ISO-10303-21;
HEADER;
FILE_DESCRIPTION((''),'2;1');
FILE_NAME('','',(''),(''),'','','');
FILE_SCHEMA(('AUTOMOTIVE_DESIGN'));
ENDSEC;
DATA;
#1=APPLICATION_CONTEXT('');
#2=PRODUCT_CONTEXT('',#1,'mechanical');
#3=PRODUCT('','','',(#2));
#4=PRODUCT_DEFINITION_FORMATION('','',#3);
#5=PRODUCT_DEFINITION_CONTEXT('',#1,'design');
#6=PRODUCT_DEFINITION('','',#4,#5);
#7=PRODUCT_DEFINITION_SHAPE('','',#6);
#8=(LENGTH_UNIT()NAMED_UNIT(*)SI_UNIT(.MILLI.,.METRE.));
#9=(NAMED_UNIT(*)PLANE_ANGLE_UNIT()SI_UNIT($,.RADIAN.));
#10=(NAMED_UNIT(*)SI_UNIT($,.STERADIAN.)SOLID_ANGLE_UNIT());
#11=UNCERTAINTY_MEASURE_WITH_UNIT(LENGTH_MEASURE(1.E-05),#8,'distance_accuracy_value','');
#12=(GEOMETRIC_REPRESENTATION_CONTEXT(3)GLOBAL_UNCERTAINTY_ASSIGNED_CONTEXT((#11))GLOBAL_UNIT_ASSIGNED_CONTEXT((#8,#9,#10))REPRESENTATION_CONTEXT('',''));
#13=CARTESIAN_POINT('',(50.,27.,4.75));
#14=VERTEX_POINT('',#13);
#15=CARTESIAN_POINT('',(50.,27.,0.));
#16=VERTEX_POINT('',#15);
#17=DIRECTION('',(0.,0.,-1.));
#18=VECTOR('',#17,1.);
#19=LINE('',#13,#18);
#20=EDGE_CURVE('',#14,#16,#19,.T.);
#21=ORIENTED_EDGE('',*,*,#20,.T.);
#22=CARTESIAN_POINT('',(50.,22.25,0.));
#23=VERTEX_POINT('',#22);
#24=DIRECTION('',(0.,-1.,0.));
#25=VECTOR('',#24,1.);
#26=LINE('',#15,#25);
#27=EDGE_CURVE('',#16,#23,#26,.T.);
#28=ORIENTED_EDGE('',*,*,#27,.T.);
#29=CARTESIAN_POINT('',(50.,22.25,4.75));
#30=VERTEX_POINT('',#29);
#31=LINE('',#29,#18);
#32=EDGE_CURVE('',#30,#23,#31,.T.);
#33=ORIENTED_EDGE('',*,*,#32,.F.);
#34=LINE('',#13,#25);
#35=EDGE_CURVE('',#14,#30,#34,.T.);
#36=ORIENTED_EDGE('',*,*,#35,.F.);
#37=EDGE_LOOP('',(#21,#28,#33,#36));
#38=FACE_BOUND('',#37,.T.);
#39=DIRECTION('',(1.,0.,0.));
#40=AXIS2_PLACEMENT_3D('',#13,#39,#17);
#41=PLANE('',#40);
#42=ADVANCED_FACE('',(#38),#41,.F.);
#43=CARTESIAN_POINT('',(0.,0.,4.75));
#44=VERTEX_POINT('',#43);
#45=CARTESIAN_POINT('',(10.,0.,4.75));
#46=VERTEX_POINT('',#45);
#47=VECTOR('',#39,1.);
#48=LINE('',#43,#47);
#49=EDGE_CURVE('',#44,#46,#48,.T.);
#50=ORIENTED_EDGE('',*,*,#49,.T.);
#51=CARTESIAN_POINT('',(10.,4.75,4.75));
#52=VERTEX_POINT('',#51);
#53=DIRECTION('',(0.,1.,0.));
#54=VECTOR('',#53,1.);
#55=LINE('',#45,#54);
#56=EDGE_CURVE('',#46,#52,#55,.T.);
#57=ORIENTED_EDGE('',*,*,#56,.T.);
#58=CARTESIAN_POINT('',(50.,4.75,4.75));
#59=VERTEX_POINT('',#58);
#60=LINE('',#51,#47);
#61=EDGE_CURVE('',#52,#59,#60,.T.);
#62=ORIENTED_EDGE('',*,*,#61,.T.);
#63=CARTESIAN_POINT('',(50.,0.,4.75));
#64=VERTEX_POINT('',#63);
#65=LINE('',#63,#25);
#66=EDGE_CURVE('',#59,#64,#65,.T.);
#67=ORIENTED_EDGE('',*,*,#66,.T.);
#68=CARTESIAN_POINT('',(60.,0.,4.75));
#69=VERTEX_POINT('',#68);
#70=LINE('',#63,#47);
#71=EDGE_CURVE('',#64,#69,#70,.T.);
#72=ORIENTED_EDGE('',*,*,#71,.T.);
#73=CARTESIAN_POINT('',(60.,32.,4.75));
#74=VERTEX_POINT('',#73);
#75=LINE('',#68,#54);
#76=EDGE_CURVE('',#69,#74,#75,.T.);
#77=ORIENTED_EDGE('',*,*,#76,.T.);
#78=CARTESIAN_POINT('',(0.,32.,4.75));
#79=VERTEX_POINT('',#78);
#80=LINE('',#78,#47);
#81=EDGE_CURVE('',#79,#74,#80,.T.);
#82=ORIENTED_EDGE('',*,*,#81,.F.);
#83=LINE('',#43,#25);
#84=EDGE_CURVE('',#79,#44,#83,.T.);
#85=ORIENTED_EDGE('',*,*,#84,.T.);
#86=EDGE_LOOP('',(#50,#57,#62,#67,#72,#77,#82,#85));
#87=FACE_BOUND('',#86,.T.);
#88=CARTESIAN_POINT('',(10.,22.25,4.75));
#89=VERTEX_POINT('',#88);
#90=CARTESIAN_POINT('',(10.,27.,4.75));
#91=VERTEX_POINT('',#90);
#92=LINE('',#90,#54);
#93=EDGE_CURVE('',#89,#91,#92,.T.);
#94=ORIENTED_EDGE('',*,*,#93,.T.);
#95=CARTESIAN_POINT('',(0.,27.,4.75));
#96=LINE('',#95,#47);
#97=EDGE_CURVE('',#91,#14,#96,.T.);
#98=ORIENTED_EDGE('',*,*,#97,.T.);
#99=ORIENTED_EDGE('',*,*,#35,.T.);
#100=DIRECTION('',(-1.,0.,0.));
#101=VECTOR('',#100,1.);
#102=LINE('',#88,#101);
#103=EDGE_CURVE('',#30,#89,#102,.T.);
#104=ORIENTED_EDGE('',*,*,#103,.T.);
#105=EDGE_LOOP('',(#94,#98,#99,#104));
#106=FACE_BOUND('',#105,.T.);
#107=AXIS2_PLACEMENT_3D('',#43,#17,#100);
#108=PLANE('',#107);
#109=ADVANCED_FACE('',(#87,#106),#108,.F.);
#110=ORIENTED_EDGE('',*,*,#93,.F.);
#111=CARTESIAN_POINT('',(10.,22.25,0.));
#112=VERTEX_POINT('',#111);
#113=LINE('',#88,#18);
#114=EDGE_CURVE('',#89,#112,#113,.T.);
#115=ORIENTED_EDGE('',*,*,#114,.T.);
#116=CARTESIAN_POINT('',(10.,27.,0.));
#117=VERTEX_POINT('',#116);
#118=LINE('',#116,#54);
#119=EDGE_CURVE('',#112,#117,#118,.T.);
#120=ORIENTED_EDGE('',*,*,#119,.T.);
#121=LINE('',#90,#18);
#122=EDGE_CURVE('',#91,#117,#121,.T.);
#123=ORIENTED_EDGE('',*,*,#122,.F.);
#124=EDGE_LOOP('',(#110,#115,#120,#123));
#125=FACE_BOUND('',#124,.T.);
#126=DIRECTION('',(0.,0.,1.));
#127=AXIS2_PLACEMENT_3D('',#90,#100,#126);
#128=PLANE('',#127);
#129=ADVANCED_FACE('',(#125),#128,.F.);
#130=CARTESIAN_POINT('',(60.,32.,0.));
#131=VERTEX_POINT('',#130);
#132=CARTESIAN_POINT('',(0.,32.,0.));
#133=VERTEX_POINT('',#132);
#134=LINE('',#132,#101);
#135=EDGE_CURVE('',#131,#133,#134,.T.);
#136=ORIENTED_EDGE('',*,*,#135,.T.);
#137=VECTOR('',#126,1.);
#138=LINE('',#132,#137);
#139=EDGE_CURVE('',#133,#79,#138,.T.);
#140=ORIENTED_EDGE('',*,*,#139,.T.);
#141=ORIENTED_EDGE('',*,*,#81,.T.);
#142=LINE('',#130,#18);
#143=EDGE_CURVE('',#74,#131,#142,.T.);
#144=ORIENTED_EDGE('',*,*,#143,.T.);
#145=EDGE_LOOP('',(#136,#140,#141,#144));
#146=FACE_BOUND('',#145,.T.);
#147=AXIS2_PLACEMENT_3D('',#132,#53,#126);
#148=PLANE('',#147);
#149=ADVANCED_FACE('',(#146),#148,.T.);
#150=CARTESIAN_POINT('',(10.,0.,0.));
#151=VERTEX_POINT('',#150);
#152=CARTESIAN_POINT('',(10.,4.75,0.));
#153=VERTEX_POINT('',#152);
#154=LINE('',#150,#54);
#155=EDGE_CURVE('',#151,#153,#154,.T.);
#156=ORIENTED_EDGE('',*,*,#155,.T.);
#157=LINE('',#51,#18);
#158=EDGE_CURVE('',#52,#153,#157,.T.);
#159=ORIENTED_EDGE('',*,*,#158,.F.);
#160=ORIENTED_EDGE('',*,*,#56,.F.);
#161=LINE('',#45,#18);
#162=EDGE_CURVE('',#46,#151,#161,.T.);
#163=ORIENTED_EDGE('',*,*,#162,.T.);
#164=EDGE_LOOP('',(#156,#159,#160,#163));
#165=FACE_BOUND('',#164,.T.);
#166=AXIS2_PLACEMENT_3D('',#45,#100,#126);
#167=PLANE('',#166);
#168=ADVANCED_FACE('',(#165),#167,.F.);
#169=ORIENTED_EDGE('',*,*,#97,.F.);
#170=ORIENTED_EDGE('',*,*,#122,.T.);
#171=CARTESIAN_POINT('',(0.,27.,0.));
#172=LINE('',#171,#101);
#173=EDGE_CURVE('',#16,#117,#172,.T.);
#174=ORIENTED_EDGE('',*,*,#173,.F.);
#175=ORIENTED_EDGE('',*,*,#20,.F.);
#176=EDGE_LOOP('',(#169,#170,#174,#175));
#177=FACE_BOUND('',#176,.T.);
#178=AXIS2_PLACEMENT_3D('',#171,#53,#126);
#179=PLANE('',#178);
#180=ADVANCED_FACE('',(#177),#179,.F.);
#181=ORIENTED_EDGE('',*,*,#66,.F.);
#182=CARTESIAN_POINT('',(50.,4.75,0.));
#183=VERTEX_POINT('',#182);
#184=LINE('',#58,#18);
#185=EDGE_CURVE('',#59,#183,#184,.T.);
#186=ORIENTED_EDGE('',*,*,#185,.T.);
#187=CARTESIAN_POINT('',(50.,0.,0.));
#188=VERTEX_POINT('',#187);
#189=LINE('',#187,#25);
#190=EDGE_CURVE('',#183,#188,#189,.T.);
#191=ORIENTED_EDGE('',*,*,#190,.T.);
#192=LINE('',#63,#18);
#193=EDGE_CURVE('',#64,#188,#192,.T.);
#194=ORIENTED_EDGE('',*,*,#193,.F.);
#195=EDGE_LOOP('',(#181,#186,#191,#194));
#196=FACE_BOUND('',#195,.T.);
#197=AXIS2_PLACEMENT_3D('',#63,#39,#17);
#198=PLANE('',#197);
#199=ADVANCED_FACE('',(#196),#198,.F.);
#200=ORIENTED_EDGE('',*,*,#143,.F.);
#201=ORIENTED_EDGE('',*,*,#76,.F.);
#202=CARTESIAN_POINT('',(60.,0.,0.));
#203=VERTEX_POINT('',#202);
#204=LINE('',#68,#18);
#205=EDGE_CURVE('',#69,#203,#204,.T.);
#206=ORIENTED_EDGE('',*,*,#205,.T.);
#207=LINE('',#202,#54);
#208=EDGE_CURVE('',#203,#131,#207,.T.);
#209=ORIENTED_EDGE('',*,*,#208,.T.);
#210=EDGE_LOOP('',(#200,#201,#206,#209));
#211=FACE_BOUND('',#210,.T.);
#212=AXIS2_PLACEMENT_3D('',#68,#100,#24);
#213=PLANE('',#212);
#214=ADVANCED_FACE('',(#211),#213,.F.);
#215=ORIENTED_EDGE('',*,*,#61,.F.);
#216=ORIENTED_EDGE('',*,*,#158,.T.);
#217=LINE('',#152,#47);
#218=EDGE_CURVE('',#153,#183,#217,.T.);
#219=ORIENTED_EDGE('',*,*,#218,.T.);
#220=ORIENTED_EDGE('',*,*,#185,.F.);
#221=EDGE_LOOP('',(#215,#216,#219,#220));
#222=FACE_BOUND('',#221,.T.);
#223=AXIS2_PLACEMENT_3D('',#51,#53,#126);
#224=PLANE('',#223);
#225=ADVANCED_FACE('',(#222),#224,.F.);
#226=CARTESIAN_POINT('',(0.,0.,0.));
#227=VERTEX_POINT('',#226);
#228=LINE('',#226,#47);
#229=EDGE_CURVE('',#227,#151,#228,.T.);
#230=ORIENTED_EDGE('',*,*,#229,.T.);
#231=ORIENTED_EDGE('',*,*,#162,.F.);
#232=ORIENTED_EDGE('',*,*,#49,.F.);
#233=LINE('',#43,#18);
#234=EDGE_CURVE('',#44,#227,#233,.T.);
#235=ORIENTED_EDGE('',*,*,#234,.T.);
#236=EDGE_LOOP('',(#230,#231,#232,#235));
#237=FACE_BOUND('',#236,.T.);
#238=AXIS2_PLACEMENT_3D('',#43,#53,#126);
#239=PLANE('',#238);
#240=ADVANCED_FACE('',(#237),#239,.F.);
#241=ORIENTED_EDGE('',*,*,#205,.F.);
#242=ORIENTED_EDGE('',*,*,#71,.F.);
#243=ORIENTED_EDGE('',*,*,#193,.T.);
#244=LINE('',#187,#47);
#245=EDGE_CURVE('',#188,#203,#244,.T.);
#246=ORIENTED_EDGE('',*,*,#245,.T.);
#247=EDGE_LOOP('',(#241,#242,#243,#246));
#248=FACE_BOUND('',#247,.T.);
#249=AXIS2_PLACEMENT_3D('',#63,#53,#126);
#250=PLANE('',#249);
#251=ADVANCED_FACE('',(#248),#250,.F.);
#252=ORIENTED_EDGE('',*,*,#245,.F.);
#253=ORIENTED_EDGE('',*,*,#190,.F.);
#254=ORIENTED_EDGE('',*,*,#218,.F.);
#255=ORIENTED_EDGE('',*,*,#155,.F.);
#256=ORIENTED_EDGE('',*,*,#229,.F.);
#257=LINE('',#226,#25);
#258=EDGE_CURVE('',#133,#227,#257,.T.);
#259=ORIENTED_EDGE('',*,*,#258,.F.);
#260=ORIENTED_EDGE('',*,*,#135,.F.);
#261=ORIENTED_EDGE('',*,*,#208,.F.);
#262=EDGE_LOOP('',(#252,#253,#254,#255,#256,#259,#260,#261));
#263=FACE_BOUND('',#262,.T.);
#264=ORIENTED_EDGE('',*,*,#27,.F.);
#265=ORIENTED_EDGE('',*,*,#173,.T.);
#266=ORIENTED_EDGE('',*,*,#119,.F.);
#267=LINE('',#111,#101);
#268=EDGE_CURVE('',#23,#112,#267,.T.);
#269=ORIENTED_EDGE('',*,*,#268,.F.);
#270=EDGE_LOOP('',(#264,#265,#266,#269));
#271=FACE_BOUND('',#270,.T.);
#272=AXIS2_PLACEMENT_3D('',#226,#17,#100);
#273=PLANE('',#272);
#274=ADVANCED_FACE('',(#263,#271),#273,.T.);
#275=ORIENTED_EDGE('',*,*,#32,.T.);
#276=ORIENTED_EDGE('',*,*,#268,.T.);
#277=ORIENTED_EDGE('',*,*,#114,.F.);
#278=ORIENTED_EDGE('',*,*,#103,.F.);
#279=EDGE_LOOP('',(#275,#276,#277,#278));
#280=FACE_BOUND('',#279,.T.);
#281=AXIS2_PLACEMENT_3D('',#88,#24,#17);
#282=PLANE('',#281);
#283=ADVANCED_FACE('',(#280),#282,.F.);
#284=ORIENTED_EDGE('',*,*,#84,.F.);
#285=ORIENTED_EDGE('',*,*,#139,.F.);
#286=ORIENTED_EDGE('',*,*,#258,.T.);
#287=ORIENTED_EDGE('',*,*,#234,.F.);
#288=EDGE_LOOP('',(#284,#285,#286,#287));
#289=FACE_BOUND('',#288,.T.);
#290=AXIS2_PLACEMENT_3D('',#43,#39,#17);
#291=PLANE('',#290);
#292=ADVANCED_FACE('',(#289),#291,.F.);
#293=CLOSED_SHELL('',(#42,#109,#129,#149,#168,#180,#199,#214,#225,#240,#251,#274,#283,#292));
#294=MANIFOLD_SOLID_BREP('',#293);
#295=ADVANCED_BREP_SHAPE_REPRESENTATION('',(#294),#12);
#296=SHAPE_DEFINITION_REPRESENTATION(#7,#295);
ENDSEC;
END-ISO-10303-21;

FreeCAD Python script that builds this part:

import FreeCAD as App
import Part
import Sketcher
Q = App.Units.Quantity


def add_polygon(sketch, points):
    """Adds a closed chain of lines whose ends are joined by coincident constraints."""
    first, n = sketch.GeometryCount, len(points)
    for a, b in zip(points, points[1:] + points[:1]):
        sketch.addGeometry(Part.LineSegment(App.Vector(*a, 0), App.Vector(*b, 0)), False)
    for i in range(n):
        sketch.addConstraint(Sketcher.Constraint("Coincident", first + i, 2, first + (i + 1) % n, 1))

doc = App.newDocument("Part")
params = doc.addObject("Spreadsheet::Sheet", "Params")
for row, (alias, value) in enumerate([
    ("sketch1_width", "10 mm"),
    ("sketch1_width2", "40 mm"),
    ("sketch1_height", "27 mm"),
    ("sketch1_height2", "4.75 mm"),
    ("pad1_length", "4.75 mm"),
    ("sketch2_width", "60 mm"),
    ("sketch2_height", "4.75 mm"),
    ("pad2_length", "5 mm"),
], start=1):
    params.set(f"A{row}", alias)
    params.set(f"B{row}", "=" + value)
    params.setAlias(f"B{row}", alias)

body = doc.addObject("PartDesign::Body", "Body")

# Sketch on XY plane
sketch1 = body.newObject("Sketcher::SketchObject", "Sketch")
sketch1.AttachmentSupport = (doc.getObject("XY_Plane"), [""])
sketch1.MapMode = "FlatFace"
add_polygon(sketch1, [(0, 0), (10, 0), (10, 4.8), (50, 4.8), (50, 0), (60, 0), (60, 27), (50, 27), (50, 22.2), (10, 22.2), (10, 27), (0, 27)])  # lines 0-11
sketch1.addConstraint(Sketcher.Constraint("Horizontal", 0))
sketch1.addConstraint(Sketcher.Constraint("Vertical", 1))
sketch1.addConstraint(Sketcher.Constraint("Horizontal", 2))
sketch1.addConstraint(Sketcher.Constraint("Vertical", 3))
sketch1.addConstraint(Sketcher.Constraint("Horizontal", 4))
sketch1.addConstraint(Sketcher.Constraint("Vertical", 5))
sketch1.addConstraint(Sketcher.Constraint("Horizontal", 6))
sketch1.addConstraint(Sketcher.Constraint("Vertical", 7))
sketch1.addConstraint(Sketcher.Constraint("Horizontal", 8))
sketch1.addConstraint(Sketcher.Constraint("Vertical", 9))
sketch1.addConstraint(Sketcher.Constraint("Horizontal", 10))
sketch1.addConstraint(Sketcher.Constraint("Vertical", 11))
sketch1.addConstraint(Sketcher.Constraint("Coincident", 11, 2, -1, 1))
sketch1.addConstraint(Sketcher.Constraint("PointOnObject", 3, 2, -1))
sketch1.addConstraint(Sketcher.Constraint("Horizontal", 6, 2, 9, 2))
sketch1.addConstraint(Sketcher.Constraint("Vertical", 3, 2, 6, 2))
sketch1.addConstraint(Sketcher.Constraint("Vertical", 1, 2, 8, 2))
sketch1.addConstraint(Sketcher.Constraint("Equal", 0, 4))
sketch1.addConstraint(Sketcher.Constraint("Equal", 3, 7))
sketch1.addConstraint(Sketcher.Constraint("DistanceX", 0, 1, 0, 2, Q("10 mm")))
sketch1.addConstraint(Sketcher.Constraint("DistanceX", 2, 1, 2, 2, Q("40 mm")))
sketch1.addConstraint(Sketcher.Constraint("DistanceY", 5, 1, 5, 2, Q("27 mm")))
sketch1.addConstraint(Sketcher.Constraint("DistanceY", 1, 1, 1, 2, Q("4.75 mm")))
sketch1.setExpression("Constraints[31]", "Params.sketch1_width")
sketch1.setExpression("Constraints[32]", "Params.sketch1_width2")
sketch1.setExpression("Constraints[33]", "Params.sketch1_height")
sketch1.setExpression("Constraints[34]", "Params.sketch1_height2")
pad1 = body.newObject("PartDesign::Pad", "Pad")
pad1.Profile = sketch1
pad1.setExpression("Length", "Params.pad1_length")

# Sketch on XZ plane
sketch2 = body.newObject("Sketcher::SketchObject", "Sketch001")
sketch2.AttachmentSupport = (doc.getObject("XZ_Plane"), [""])
sketch2.MapMode = "FlatFace"
sketch2.AttachmentOffset = App.Placement(App.Vector(0, 0, -27), App.Rotation())
add_polygon(sketch2, [(0, 0), (0, 4.8), (60, 4.8), (60, 0)])  # lines 0-3
sketch2.addConstraint(Sketcher.Constraint("Vertical", 0))
sketch2.addConstraint(Sketcher.Constraint("Horizontal", 1))
sketch2.addConstraint(Sketcher.Constraint("Vertical", 2))
sketch2.addConstraint(Sketcher.Constraint("Horizontal", 3))
sketch2.addConstraint(Sketcher.Constraint("Coincident", 3, 2, -1, 1))
sketch2.addConstraint(Sketcher.Constraint("DistanceX", 1, 1, 1, 2, Q("60 mm")))
sketch2.addConstraint(Sketcher.Constraint("DistanceY", 0, 1, 0, 2, Q("4.75 mm")))
sketch2.setExpression("Constraints[9]", "Params.sketch2_width")
sketch2.setExpression("Constraints[10]", "Params.sketch2_height")
pad2 = body.newObject("PartDesign::Pad", "Pad001")
pad2.Profile = sketch2
pad2.setExpression("Length", "Params.pad2_length")
pad2.Reversed = True

doc.recompute()
